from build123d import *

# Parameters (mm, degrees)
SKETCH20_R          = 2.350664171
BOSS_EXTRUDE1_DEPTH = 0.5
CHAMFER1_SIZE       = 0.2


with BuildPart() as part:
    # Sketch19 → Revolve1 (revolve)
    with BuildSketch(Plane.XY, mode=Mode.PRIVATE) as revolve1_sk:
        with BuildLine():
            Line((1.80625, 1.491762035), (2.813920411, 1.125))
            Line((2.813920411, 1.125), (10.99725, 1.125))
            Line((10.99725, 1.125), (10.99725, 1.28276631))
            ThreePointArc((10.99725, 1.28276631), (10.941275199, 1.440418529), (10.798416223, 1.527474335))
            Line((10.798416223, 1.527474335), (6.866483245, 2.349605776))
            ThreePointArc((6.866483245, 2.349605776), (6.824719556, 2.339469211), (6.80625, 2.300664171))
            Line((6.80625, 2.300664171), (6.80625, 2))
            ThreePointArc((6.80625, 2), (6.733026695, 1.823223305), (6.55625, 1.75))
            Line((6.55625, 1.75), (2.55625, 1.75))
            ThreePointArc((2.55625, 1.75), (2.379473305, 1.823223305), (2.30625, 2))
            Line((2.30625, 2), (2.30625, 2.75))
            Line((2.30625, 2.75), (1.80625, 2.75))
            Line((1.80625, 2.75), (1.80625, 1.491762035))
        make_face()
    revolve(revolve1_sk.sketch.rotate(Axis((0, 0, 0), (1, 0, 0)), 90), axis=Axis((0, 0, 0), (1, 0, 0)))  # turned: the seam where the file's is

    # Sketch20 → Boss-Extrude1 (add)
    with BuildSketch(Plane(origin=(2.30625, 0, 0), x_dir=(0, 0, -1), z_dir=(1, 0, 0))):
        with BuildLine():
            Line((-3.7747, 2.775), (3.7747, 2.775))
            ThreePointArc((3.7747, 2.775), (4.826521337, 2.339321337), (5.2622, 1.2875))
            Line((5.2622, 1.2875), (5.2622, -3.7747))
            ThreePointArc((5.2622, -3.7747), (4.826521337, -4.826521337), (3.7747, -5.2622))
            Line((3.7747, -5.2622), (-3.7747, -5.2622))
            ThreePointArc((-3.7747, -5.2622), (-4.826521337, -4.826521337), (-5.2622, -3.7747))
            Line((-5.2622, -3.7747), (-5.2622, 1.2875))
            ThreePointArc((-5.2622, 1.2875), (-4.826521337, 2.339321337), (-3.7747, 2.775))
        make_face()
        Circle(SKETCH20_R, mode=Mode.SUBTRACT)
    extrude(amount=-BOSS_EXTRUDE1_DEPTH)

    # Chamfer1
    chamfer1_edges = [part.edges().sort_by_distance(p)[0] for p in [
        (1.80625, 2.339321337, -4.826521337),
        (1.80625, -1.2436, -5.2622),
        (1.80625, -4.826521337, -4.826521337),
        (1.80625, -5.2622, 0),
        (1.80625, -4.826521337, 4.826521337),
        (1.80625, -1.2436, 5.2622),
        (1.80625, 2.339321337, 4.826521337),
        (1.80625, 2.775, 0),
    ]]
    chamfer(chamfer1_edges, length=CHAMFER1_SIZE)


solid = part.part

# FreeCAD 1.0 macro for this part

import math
import FreeCAD as App
import Part
import Sketcher
from FreeCAD import Vector
Q = App.Units.Quantity


def edges_at(feature, points):
    """Names of the edges that pass closest to the given points."""
    edges = feature.Shape.Edges
    near = lambda p: min(range(len(edges)), key=lambda i: edges[i].distToShape(Part.Vertex(*p))[0])
    return sorted({f"Edge{near(p) + 1}" for p in points})

doc = App.newDocument("Part")
body = doc.addObject("PartDesign::Body", "Body")

# Sketch on XY plane
sketch1 = body.newObject("Sketcher::SketchObject", "Sketch")
sketch1.AttachmentSupport = (doc.getObject("XY_Plane"), [""])
sketch1.MapMode = "FlatFace"
sketch1.addGeometry([
    Part.LineSegment(Vector(1.81, 1.49, 0), Vector(2.81, 1.12, 0)),  # 0
    Part.LineSegment(Vector(2.81, 1.12, 0), Vector(11, 1.12, 0)),  # 1
    Part.LineSegment(Vector(11, 1.12, 0), Vector(11, 1.28, 0)),  # 2
    Part.ArcOfCircle(Part.Circle(Vector(10.75, 1.28, 0), Vector(0, 0, 1), 0.25), math.radians(0), math.radians(78)),  # 3
    Part.LineSegment(Vector(10.8, 1.53, 0), Vector(6.87, 2.35, 0)),  # 4
    Part.ArcOfCircle(Part.Circle(Vector(6.86, 2.3, 0), Vector(0, 0, 1), 0.05), math.radians(78), math.radians(180)),  # 5
    Part.LineSegment(Vector(6.81, 2.3, 0), Vector(6.81, 2, 0)),  # 6
    Part.ArcOfCircle(Part.Circle(Vector(6.56, 2, 0), Vector(0, 0, 1), 0.25), math.radians(-90), math.radians(0)),  # 7
    Part.LineSegment(Vector(6.56, 1.75, 0), Vector(2.56, 1.75, 0)),  # 8
    Part.ArcOfCircle(Part.Circle(Vector(2.56, 2, 0), Vector(0, 0, 1), 0.25), math.radians(-180), math.radians(-90)),  # 9
    Part.LineSegment(Vector(2.31, 2, 0), Vector(2.31, 2.75, 0)),  # 10
    Part.LineSegment(Vector(2.31, 2.75, 0), Vector(1.81, 2.75, 0)),  # 11
    Part.LineSegment(Vector(1.81, 2.75, 0), Vector(1.81, 1.49, 0)),  # 12
], False)
sketch1.addConstraint([
    Sketcher.Constraint("Coincident", 0, 2, 1, 1),
    Sketcher.Constraint("Coincident", 1, 2, 2, 1),
    Sketcher.Constraint("Tangent", 2, 2, 3, 1),
    Sketcher.Constraint("Tangent", 3, 2, 4, 1),
    Sketcher.Constraint("Tangent", 4, 2, 5, 1),
    Sketcher.Constraint("Tangent", 5, 2, 6, 1),
    Sketcher.Constraint("Tangent", 6, 2, 7, 2),
    Sketcher.Constraint("Tangent", 7, 1, 8, 1),
    Sketcher.Constraint("Tangent", 8, 2, 9, 2),
    Sketcher.Constraint("Tangent", 9, 1, 10, 1),
    Sketcher.Constraint("Coincident", 10, 2, 11, 1),
    Sketcher.Constraint("Coincident", 11, 2, 12, 1),
    Sketcher.Constraint("Coincident", 12, 2, 0, 1),
    Sketcher.Constraint("Horizontal", 1),
    Sketcher.Constraint("Vertical", 2),
    Sketcher.Constraint("Vertical", 6),
    Sketcher.Constraint("Horizontal", 8),
    Sketcher.Constraint("Vertical", 10),
    Sketcher.Constraint("Horizontal", 11),
    Sketcher.Constraint("Vertical", 12),
    Sketcher.Constraint("Equal", 3, 7),
    Sketcher.Constraint("Equal", 7, 9),
    Sketcher.Constraint("DistanceX", 8, 2, 8, 1, 4.0),
    Sketcher.Constraint("Angle", 0, Q("-20 deg")),
    Sketcher.Constraint("Radius", 3, 0.25),
    Sketcher.Constraint("Radius", 5, 0.05),
    Sketcher.Constraint("DistanceX", 11, 2, 11, 1, 0.5),
    Sketcher.Constraint("DistanceY", -1, 1, 7, 3, 2.0),
    Sketcher.Constraint("DistanceY", 8, 2, 10, 2, 1.0),
    Sketcher.Constraint("DistanceY", -1, 1, 0, 2, 1.125),
    Sketcher.Constraint("DistanceX", 5, 3, 3, 3, 3.891),
    Sketcher.Constraint("DistanceX", 1, 1, 1, 2, 8.18333),
    Sketcher.Constraint("DistanceY", 2, 1, 2, 2, 0.157766),
    Sketcher.Constraint("DistanceY", 6, 2, 6, 1, 0.300664),
    Sketcher.Constraint("DistanceX", -1, 1, 3, 3, 10.74725),
])
revolution = body.newObject("PartDesign::Revolution", "Revolution")
revolution.Profile = sketch1
revolution.ReferenceAxis = (sketch1, ["H_Axis"])
revolution.Angle = 360

# Sketch on YZ plane
sketch2 = body.newObject("Sketcher::SketchObject", "Sketch001")
sketch2.AttachmentSupport = (doc.getObject("YZ_Plane"), [""])
sketch2.MapMode = "FlatFace"
sketch2.AttachmentOffset = App.Placement(Vector(0, 0, 2.30625), App.Rotation())
sketch2.addGeometry([
    Part.LineSegment(Vector(2.8, -3.8, 0), Vector(2.8, 3.8, 0)),  # 0
    Part.ArcOfCircle(Part.Circle(Vector(1.3, 3.8, 0), Vector(0, 0, 1), 1.5), math.radians(0), math.radians(90)),  # 1
    Part.LineSegment(Vector(1.3, 5.3, 0), Vector(-3.8, 5.3, 0)),  # 2
    Part.ArcOfCircle(Part.Circle(Vector(-3.8, 3.8, 0), Vector(0, 0, 1), 1.5), math.radians(90), math.radians(180)),  # 3
    Part.LineSegment(Vector(-5.3, 3.8, 0), Vector(-5.3, -3.8, 0)),  # 4
    Part.ArcOfCircle(Part.Circle(Vector(-3.8, -3.8, 0), Vector(0, 0, 1), 1.5), math.radians(180), math.radians(270)),  # 5
    Part.LineSegment(Vector(-3.8, -5.3, 0), Vector(1.3, -5.3, 0)),  # 6
    Part.ArcOfCircle(Part.Circle(Vector(1.3, -3.8, 0), Vector(0, 0, 1), 1.5), math.radians(-90), math.radians(0)),  # 7
    Part.Circle(Vector(0, 0, 0), Vector(0, 0, 1), 2.4),  # 8
], False)
sketch2.addConstraint([
    Sketcher.Constraint("Tangent", 0, 2, 1, 1),
    Sketcher.Constraint("Tangent", 1, 2, 2, 1),
    Sketcher.Constraint("Tangent", 2, 2, 3, 1),
    Sketcher.Constraint("Tangent", 3, 2, 4, 1),
    Sketcher.Constraint("Tangent", 4, 2, 5, 1),
    Sketcher.Constraint("Tangent", 5, 2, 6, 1),
    Sketcher.Constraint("Tangent", 6, 2, 7, 1),
    Sketcher.Constraint("Tangent", 7, 2, 0, 1),
    Sketcher.Constraint("Vertical", 0),
    Sketcher.Constraint("Horizontal", 2),
    Sketcher.Constraint("Vertical", 4),
    Sketcher.Constraint("Horizontal", 6),
    Sketcher.Constraint("Coincident", 8, 3, -1, 1),
    Sketcher.Constraint("Equal", 1, 3),
    Sketcher.Constraint("Equal", 3, 5),
    Sketcher.Constraint("Equal", 5, 7),
    Sketcher.Constraint("Radius", 1, 1.4875),
    Sketcher.Constraint("Diameter", 8, 4.701328),
    Sketcher.Constraint("DistanceX", 2, 2, 2, 1, 5.0622),
    Sketcher.Constraint("DistanceY", 0, 1, 0, 2, 7.5494),
    Sketcher.Constraint("DistanceX", -1, 1, 0, 2, 2.775),
    Sketcher.Constraint("DistanceY", -1, 1, 1, 3, 3.7747),
])
pad1 = body.newObject("PartDesign::Pad", "Pad")
pad1.Profile = sketch2
pad1.Length = 0.5
pad1.Reversed = True
doc.recompute()

chamfer = body.newObject("PartDesign::Chamfer", "Chamfer")
chamfer.Base = (pad1, edges_at(pad1, [
    (1.806, 2.339, -4.827),
    (1.806, -1.244, -5.262),
    (1.806, -4.827, -4.827),
    (1.806, -5.262, 0),
    (1.806, -4.827, 4.827),
    (1.806, -1.244, 5.262),
    (1.806, 2.339, 4.827),
    (1.806, 2.775, 0),
]))
chamfer.Size = 0.2

doc.recompute()
